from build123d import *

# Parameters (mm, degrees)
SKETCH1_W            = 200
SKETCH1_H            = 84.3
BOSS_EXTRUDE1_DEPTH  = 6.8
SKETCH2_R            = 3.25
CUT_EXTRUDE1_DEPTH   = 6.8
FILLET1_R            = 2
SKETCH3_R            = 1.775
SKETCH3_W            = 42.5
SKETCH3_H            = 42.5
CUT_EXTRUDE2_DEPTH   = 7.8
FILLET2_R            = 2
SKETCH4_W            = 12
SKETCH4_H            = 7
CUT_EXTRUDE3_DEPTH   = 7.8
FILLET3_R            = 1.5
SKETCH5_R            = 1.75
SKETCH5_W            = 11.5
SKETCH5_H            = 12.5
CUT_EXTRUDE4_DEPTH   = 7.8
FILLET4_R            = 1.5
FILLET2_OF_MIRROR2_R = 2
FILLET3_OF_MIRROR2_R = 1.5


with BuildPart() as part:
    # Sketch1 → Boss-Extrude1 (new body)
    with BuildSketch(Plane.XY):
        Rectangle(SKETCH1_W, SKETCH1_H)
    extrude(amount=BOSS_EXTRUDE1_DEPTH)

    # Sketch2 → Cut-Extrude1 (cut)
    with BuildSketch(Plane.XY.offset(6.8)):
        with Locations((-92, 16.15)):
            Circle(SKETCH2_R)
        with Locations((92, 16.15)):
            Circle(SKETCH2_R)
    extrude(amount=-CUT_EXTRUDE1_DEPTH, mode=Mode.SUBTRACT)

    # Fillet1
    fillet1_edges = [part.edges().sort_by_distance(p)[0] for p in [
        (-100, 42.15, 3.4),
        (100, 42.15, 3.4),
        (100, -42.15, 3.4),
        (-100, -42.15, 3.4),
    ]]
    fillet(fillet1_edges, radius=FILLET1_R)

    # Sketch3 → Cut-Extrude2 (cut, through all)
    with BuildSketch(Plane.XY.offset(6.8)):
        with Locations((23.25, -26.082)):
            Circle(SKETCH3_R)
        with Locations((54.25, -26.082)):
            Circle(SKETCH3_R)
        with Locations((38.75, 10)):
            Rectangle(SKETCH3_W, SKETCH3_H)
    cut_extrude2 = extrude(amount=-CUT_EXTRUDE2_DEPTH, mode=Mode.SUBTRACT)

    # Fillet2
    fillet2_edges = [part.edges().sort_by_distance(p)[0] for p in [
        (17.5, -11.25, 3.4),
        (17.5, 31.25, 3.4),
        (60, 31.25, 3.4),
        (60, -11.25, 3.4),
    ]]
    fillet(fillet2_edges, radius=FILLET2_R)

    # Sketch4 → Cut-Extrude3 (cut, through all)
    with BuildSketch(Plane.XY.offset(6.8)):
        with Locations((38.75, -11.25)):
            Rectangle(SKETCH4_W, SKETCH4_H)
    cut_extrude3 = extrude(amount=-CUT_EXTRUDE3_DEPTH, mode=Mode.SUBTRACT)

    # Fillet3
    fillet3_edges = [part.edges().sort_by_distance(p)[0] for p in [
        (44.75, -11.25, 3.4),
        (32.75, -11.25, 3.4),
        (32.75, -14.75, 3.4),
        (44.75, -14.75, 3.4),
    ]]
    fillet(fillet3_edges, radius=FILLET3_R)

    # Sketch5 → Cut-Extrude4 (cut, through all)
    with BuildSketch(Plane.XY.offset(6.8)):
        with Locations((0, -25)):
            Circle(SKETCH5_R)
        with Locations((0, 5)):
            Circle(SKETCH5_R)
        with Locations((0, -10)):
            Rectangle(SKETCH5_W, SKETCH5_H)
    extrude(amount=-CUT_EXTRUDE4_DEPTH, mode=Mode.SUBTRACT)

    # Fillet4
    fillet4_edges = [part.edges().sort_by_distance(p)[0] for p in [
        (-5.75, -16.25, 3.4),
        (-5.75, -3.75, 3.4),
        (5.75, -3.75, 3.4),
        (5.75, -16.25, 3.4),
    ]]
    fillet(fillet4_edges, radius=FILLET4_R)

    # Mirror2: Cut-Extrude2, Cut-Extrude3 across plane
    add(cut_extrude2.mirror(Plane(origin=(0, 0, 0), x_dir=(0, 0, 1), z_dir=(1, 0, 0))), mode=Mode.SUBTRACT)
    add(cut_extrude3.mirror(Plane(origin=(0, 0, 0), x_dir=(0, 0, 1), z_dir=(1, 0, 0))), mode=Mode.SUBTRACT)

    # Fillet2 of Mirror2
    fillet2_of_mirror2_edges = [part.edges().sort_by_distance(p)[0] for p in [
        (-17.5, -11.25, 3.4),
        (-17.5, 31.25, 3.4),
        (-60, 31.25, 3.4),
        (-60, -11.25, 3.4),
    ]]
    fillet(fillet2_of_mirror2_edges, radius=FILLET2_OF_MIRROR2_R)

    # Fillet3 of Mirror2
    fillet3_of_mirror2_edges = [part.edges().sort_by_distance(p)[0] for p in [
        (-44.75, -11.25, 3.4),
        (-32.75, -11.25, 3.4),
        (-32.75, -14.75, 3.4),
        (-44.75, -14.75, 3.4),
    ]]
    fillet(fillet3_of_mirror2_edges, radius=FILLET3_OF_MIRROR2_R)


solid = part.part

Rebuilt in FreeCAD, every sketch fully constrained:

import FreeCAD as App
import Part
import Sketcher


def edges_at(feature, points):
    """Names of the edges that pass closest to the given points."""
    edges = feature.Shape.Edges
    near = lambda p: min(range(len(edges)), key=lambda i: edges[i].distToShape(Part.Vertex(*p))[0])
    return sorted({f"Edge{near(p) + 1}" for p in points})

doc = App.newDocument("Part")
body = doc.addObject("PartDesign::Body", "Body")

sketch1 = doc.addObject("Sketcher::SketchObject", "Sketch")
body.addObject(sketch1)
sketch1.AttachmentSupport = (doc.XY_Plane, [""])
sketch1.MapMode = "FlatFace"
sketch1.addGeometry([
    Part.LineSegment(App.Vector(-100, 42, 0), App.Vector(-100, -42, 0)),
    Part.LineSegment(App.Vector(-100, -42, 0), App.Vector(100, -42, 0)),
    Part.LineSegment(App.Vector(100, -42, 0), App.Vector(100, 42, 0)),
    Part.LineSegment(App.Vector(100, 42, 0), App.Vector(-100, 42, 0)),
], False)
sketch1.addConstraint([
    Sketcher.Constraint("Coincident", 0, 2, 1, 1),
    Sketcher.Constraint("Coincident", 1, 2, 2, 1),
    Sketcher.Constraint("Coincident", 2, 2, 3, 1),
    Sketcher.Constraint("Coincident", 3, 2, 0, 1),
    Sketcher.Constraint("Vertical", 0),
    Sketcher.Constraint("Horizontal", 1),
    Sketcher.Constraint("Vertical", 2),
    Sketcher.Constraint("Horizontal", 3),
    Sketcher.Constraint("Symmetric", 0, 2, 2, 2, -1, 1),
    Sketcher.Constraint("DistanceX", 1, 1, 1, 2, 200.0),
    Sketcher.Constraint("DistanceY", 0, 2, 0, 1, 84.3),
])
pad1 = doc.addObject("PartDesign::Pad", "Pad")
body.addObject(pad1)
pad1.Profile = sketch1
pad1.Length = 6.8

sketch2 = doc.addObject("Sketcher::SketchObject", "Sketch001")
body.addObject(sketch2)
sketch2.AttachmentSupport = (doc.XY_Plane, [""])
sketch2.MapMode = "FlatFace"
sketch2.AttachmentOffset = App.Placement(App.Vector(0, 0, 6.8), App.Rotation())
sketch2.addGeometry([
    Part.Circle(App.Vector(-92, 16.1, 0), App.Vector(0, 0, 1), 3.2),
    Part.Circle(App.Vector(92, 16.1, 0), App.Vector(0, 0, 1), 3.2),
], False)
sketch2.addConstraint([
    Sketcher.Constraint("Equal", 0, 1),
    Sketcher.Constraint("Symmetric", 0, 3, 1, 3, -2),
    Sketcher.Constraint("Diameter", 0, 6.5),
    Sketcher.Constraint("DistanceX", 0, 3, -1, 1, 92.0),
    Sketcher.Constraint("DistanceY", -1, 1, 0, 3, 16.15),
])
pocket1 = doc.addObject("PartDesign::Pocket", "Pocket")
body.addObject(pocket1)
pocket1.Profile = sketch2
pocket1.Length = 6.8
doc.recompute()

fillet = doc.addObject("PartDesign::Fillet", "Fillet")
body.addObject(fillet)
fillet.Base = (pocket1, edges_at(pocket1, [
    (-100, 42.15, 3.4),
    (100, 42.15, 3.4),
    (100, -42.15, 3.4),
    (-100, -42.15, 3.4),
]))
fillet.Radius = 2

sketch3 = doc.addObject("Sketcher::SketchObject", "Sketch002")
body.addObject(sketch3)
sketch3.AttachmentSupport = (doc.XY_Plane, [""])
sketch3.MapMode = "FlatFace"
sketch3.AttachmentOffset = App.Placement(App.Vector(0, 0, 6.8), App.Rotation())
sketch3.addGeometry([
    Part.Circle(App.Vector(23.2, -26.1, 0), App.Vector(0, 0, 1), 1.8),
    Part.Circle(App.Vector(54.2, -26.1, 0), App.Vector(0, 0, 1), 1.8),
    Part.LineSegment(App.Vector(17.5, 31.2, 0), App.Vector(17.5, -11.2, 0)),
    Part.LineSegment(App.Vector(17.5, -11.2, 0), App.Vector(60, -11.2, 0)),
    Part.LineSegment(App.Vector(60, -11.2, 0), App.Vector(60, 31.2, 0)),
    Part.LineSegment(App.Vector(60, 31.2, 0), App.Vector(17.5, 31.2, 0)),
], False)
sketch3.addConstraint([
    Sketcher.Constraint("Coincident", 2, 2, 3, 1),
    Sketcher.Constraint("Coincident", 3, 2, 4, 1),
    Sketcher.Constraint("Coincident", 4, 2, 5, 1),
    Sketcher.Constraint("Coincident", 5, 2, 2, 1),
    Sketcher.Constraint("Vertical", 2),
    Sketcher.Constraint("Horizontal", 3),
    Sketcher.Constraint("Vertical", 4),
    Sketcher.Constraint("Horizontal", 5),
    Sketcher.Constraint("Equal", 0, 1),
    Sketcher.Constraint("Horizontal", 0, 3, 1, 3),
    Sketcher.Constraint("Equal", 5, 2),
    Sketcher.Constraint("Diameter", 0, 3.55),
    Sketcher.Constraint("DistanceX", 3, 1, 3, 2, 42.5),
    Sketcher.Constraint("DistanceX", -1, 1, 3, 2, 60.0),
    Sketcher.Constraint("DistanceX", 0, 3, 1, 3, 31.0),
    Sketcher.Constraint("DistanceX", -1, 1, 0, 3, 23.25),
    Sketcher.Constraint("DistanceY", 2, 2, -1, 1, 11.25),
    Sketcher.Constraint("DistanceY", 0, 3, -1, 1, 26.082),
])
pocket2 = doc.addObject("PartDesign::Pocket", "Pocket001")
body.addObject(pocket2)
pocket2.Profile = sketch3
pocket2.Type = "ThroughAll"
doc.recompute()

fillet2 = doc.addObject("PartDesign::Fillet", "Fillet001")
body.addObject(fillet2)
fillet2.Base = (pocket2, edges_at(pocket2, [
    (17.5, -11.25, 3.4),
    (17.5, 31.25, 3.4),
    (60, 31.25, 3.4),
    (60, -11.25, 3.4),
]))
fillet2.Radius = 2

sketch4 = doc.addObject("Sketcher::SketchObject", "Sketch003")
body.addObject(sketch4)
sketch4.AttachmentSupport = (doc.XY_Plane, [""])
sketch4.MapMode = "FlatFace"
sketch4.AttachmentOffset = App.Placement(App.Vector(0, 0, 6.8), App.Rotation())
sketch4.addGeometry([
    Part.LineSegment(App.Vector(33, -8, 0), App.Vector(33, -15, 0)),
    Part.LineSegment(App.Vector(33, -15, 0), App.Vector(45, -15, 0)),
    Part.LineSegment(App.Vector(45, -15, 0), App.Vector(45, -8, 0)),
    Part.LineSegment(App.Vector(45, -8, 0), App.Vector(33, -8, 0)),
], False)
sketch4.addConstraint([
    Sketcher.Constraint("Coincident", 0, 2, 1, 1),
    Sketcher.Constraint("Coincident", 1, 2, 2, 1),
    Sketcher.Constraint("Coincident", 2, 2, 3, 1),
    Sketcher.Constraint("Coincident", 3, 2, 0, 1),
    Sketcher.Constraint("Vertical", 0),
    Sketcher.Constraint("Horizontal", 1),
    Sketcher.Constraint("Vertical", 2),
    Sketcher.Constraint("Horizontal", 3),
    Sketcher.Constraint("DistanceX", 1, 1, 1, 2, 12.0),
    Sketcher.Constraint("DistanceY", 0, 2, 0, 1, 7.0),
    Sketcher.Constraint("DistanceX", -1, 1, 0, 2, 32.75),
    Sketcher.Constraint("DistanceY", 0, 2, -1, 1, 14.75),
])
pocket3 = doc.addObject("PartDesign::Pocket", "Pocket002")
body.addObject(pocket3)
pocket3.Profile = sketch4
pocket3.Type = "ThroughAll"
doc.recompute()

fillet3 = doc.addObject("PartDesign::Fillet", "Fillet002")
body.addObject(fillet3)
fillet3.Base = (pocket3, edges_at(pocket3, [
    (44.75, -11.25, 3.4),
    (32.75, -11.25, 3.4),
    (32.75, -14.75, 3.4),
    (44.75, -14.75, 3.4),
]))
fillet3.Radius = 1.5

sketch5 = doc.addObject("Sketcher::SketchObject", "Sketch004")
body.addObject(sketch5)
sketch5.AttachmentSupport = (doc.XY_Plane, [""])
sketch5.MapMode = "FlatFace"
sketch5.AttachmentOffset = App.Placement(App.Vector(0, 0, 6.8), App.Rotation())
sketch5.addGeometry([
    Part.Circle(App.Vector(0, -25, 0), App.Vector(0, 0, 1), 1.8),
    Part.Circle(App.Vector(0, 5, 0), App.Vector(0, 0, 1), 1.8),
    Part.LineSegment(App.Vector(-5.8, -3.8, 0), App.Vector(-5.8, -16.2, 0)),
    Part.LineSegment(App.Vector(-5.8, -16.2, 0), App.Vector(5.8, -16.2, 0)),
    Part.LineSegment(App.Vector(5.8, -16.2, 0), App.Vector(5.8, -3.8, 0)),
    Part.LineSegment(App.Vector(5.8, -3.8, 0), App.Vector(-5.8, -3.8, 0)),
], False)
sketch5.addConstraint([
    Sketcher.Constraint("Coincident", 2, 2, 3, 1),
    Sketcher.Constraint("Coincident", 3, 2, 4, 1),
    Sketcher.Constraint("Coincident", 4, 2, 5, 1),
    Sketcher.Constraint("Coincident", 5, 2, 2, 1),
    Sketcher.Constraint("Vertical", 2),
    Sketcher.Constraint("Horizontal", 3),
    Sketcher.Constraint("Vertical", 4),
    Sketcher.Constraint("Horizontal", 5),
    Sketcher.Constraint("Equal", 0, 1),
    Sketcher.Constraint("PointOnObject", 0, 3, -2),
    Sketcher.Constraint("PointOnObject", 1, 3, -2),
    Sketcher.Constraint("Diameter", 0, 3.5),
    Sketcher.Constraint("DistanceX", 3, 1, 3, 2, 11.5),
    Sketcher.Constraint("DistanceY", 2, 2, 2, 1, 12.5),
    Sketcher.Constraint("DistanceY", 0, 3, -1, 1, 25.0),
    Sketcher.Constraint("DistanceY", -1, 1, 1, 3, 5.0),
    Sketcher.Constraint("DistanceX", 2, 2, -1, 1, 5.75),
    Sketcher.Constraint("DistanceY", 2, 2, -1, 1, 16.25),
])
pocket4 = doc.addObject("PartDesign::Pocket", "Pocket003")
body.addObject(pocket4)
pocket4.Profile = sketch5
pocket4.Type = "ThroughAll"
doc.recompute()

fillet4 = doc.addObject("PartDesign::Fillet", "Fillet003")
body.addObject(fillet4)
fillet4.Base = (pocket4, edges_at(pocket4, [
    (-5.75, -16.25, 3.4),
    (-5.75, -3.75, 3.4),
    (5.75, -3.75, 3.4),
    (5.75, -16.25, 3.4),
]))
fillet4.Radius = 1.5
doc.recompute()

mirrored = doc.addObject("PartDesign::Mirrored", "Mirrored")
body.addObject(mirrored)
mirrored.Originals = [pocket2, pocket3]
mirrored.MirrorPlane = (doc.YZ_Plane, [""])
body.Tip = mirrored
doc.recompute()

fillet5 = doc.addObject("PartDesign::Fillet", "Fillet004")
body.addObject(fillet5)
fillet5.Base = (mirrored, edges_at(mirrored, [
    (-17.5, -11.25, 3.4),
    (-17.5, 31.25, 3.4),
    (-60, 31.25, 3.4),
    (-60, -11.25, 3.4),
]))
fillet5.Radius = 2
doc.recompute()

fillet6 = doc.addObject("PartDesign::Fillet", "Fillet005")
body.addObject(fillet6)
fillet6.Base = (fillet5, edges_at(fillet5, [
    (-44.75, -11.25, 3.4),
    (-32.75, -11.25, 3.4),
    (-32.75, -14.75, 3.4),
    (-44.75, -14.75, 3.4),
]))
fillet6.Radius = 1.5

doc.recompute()
